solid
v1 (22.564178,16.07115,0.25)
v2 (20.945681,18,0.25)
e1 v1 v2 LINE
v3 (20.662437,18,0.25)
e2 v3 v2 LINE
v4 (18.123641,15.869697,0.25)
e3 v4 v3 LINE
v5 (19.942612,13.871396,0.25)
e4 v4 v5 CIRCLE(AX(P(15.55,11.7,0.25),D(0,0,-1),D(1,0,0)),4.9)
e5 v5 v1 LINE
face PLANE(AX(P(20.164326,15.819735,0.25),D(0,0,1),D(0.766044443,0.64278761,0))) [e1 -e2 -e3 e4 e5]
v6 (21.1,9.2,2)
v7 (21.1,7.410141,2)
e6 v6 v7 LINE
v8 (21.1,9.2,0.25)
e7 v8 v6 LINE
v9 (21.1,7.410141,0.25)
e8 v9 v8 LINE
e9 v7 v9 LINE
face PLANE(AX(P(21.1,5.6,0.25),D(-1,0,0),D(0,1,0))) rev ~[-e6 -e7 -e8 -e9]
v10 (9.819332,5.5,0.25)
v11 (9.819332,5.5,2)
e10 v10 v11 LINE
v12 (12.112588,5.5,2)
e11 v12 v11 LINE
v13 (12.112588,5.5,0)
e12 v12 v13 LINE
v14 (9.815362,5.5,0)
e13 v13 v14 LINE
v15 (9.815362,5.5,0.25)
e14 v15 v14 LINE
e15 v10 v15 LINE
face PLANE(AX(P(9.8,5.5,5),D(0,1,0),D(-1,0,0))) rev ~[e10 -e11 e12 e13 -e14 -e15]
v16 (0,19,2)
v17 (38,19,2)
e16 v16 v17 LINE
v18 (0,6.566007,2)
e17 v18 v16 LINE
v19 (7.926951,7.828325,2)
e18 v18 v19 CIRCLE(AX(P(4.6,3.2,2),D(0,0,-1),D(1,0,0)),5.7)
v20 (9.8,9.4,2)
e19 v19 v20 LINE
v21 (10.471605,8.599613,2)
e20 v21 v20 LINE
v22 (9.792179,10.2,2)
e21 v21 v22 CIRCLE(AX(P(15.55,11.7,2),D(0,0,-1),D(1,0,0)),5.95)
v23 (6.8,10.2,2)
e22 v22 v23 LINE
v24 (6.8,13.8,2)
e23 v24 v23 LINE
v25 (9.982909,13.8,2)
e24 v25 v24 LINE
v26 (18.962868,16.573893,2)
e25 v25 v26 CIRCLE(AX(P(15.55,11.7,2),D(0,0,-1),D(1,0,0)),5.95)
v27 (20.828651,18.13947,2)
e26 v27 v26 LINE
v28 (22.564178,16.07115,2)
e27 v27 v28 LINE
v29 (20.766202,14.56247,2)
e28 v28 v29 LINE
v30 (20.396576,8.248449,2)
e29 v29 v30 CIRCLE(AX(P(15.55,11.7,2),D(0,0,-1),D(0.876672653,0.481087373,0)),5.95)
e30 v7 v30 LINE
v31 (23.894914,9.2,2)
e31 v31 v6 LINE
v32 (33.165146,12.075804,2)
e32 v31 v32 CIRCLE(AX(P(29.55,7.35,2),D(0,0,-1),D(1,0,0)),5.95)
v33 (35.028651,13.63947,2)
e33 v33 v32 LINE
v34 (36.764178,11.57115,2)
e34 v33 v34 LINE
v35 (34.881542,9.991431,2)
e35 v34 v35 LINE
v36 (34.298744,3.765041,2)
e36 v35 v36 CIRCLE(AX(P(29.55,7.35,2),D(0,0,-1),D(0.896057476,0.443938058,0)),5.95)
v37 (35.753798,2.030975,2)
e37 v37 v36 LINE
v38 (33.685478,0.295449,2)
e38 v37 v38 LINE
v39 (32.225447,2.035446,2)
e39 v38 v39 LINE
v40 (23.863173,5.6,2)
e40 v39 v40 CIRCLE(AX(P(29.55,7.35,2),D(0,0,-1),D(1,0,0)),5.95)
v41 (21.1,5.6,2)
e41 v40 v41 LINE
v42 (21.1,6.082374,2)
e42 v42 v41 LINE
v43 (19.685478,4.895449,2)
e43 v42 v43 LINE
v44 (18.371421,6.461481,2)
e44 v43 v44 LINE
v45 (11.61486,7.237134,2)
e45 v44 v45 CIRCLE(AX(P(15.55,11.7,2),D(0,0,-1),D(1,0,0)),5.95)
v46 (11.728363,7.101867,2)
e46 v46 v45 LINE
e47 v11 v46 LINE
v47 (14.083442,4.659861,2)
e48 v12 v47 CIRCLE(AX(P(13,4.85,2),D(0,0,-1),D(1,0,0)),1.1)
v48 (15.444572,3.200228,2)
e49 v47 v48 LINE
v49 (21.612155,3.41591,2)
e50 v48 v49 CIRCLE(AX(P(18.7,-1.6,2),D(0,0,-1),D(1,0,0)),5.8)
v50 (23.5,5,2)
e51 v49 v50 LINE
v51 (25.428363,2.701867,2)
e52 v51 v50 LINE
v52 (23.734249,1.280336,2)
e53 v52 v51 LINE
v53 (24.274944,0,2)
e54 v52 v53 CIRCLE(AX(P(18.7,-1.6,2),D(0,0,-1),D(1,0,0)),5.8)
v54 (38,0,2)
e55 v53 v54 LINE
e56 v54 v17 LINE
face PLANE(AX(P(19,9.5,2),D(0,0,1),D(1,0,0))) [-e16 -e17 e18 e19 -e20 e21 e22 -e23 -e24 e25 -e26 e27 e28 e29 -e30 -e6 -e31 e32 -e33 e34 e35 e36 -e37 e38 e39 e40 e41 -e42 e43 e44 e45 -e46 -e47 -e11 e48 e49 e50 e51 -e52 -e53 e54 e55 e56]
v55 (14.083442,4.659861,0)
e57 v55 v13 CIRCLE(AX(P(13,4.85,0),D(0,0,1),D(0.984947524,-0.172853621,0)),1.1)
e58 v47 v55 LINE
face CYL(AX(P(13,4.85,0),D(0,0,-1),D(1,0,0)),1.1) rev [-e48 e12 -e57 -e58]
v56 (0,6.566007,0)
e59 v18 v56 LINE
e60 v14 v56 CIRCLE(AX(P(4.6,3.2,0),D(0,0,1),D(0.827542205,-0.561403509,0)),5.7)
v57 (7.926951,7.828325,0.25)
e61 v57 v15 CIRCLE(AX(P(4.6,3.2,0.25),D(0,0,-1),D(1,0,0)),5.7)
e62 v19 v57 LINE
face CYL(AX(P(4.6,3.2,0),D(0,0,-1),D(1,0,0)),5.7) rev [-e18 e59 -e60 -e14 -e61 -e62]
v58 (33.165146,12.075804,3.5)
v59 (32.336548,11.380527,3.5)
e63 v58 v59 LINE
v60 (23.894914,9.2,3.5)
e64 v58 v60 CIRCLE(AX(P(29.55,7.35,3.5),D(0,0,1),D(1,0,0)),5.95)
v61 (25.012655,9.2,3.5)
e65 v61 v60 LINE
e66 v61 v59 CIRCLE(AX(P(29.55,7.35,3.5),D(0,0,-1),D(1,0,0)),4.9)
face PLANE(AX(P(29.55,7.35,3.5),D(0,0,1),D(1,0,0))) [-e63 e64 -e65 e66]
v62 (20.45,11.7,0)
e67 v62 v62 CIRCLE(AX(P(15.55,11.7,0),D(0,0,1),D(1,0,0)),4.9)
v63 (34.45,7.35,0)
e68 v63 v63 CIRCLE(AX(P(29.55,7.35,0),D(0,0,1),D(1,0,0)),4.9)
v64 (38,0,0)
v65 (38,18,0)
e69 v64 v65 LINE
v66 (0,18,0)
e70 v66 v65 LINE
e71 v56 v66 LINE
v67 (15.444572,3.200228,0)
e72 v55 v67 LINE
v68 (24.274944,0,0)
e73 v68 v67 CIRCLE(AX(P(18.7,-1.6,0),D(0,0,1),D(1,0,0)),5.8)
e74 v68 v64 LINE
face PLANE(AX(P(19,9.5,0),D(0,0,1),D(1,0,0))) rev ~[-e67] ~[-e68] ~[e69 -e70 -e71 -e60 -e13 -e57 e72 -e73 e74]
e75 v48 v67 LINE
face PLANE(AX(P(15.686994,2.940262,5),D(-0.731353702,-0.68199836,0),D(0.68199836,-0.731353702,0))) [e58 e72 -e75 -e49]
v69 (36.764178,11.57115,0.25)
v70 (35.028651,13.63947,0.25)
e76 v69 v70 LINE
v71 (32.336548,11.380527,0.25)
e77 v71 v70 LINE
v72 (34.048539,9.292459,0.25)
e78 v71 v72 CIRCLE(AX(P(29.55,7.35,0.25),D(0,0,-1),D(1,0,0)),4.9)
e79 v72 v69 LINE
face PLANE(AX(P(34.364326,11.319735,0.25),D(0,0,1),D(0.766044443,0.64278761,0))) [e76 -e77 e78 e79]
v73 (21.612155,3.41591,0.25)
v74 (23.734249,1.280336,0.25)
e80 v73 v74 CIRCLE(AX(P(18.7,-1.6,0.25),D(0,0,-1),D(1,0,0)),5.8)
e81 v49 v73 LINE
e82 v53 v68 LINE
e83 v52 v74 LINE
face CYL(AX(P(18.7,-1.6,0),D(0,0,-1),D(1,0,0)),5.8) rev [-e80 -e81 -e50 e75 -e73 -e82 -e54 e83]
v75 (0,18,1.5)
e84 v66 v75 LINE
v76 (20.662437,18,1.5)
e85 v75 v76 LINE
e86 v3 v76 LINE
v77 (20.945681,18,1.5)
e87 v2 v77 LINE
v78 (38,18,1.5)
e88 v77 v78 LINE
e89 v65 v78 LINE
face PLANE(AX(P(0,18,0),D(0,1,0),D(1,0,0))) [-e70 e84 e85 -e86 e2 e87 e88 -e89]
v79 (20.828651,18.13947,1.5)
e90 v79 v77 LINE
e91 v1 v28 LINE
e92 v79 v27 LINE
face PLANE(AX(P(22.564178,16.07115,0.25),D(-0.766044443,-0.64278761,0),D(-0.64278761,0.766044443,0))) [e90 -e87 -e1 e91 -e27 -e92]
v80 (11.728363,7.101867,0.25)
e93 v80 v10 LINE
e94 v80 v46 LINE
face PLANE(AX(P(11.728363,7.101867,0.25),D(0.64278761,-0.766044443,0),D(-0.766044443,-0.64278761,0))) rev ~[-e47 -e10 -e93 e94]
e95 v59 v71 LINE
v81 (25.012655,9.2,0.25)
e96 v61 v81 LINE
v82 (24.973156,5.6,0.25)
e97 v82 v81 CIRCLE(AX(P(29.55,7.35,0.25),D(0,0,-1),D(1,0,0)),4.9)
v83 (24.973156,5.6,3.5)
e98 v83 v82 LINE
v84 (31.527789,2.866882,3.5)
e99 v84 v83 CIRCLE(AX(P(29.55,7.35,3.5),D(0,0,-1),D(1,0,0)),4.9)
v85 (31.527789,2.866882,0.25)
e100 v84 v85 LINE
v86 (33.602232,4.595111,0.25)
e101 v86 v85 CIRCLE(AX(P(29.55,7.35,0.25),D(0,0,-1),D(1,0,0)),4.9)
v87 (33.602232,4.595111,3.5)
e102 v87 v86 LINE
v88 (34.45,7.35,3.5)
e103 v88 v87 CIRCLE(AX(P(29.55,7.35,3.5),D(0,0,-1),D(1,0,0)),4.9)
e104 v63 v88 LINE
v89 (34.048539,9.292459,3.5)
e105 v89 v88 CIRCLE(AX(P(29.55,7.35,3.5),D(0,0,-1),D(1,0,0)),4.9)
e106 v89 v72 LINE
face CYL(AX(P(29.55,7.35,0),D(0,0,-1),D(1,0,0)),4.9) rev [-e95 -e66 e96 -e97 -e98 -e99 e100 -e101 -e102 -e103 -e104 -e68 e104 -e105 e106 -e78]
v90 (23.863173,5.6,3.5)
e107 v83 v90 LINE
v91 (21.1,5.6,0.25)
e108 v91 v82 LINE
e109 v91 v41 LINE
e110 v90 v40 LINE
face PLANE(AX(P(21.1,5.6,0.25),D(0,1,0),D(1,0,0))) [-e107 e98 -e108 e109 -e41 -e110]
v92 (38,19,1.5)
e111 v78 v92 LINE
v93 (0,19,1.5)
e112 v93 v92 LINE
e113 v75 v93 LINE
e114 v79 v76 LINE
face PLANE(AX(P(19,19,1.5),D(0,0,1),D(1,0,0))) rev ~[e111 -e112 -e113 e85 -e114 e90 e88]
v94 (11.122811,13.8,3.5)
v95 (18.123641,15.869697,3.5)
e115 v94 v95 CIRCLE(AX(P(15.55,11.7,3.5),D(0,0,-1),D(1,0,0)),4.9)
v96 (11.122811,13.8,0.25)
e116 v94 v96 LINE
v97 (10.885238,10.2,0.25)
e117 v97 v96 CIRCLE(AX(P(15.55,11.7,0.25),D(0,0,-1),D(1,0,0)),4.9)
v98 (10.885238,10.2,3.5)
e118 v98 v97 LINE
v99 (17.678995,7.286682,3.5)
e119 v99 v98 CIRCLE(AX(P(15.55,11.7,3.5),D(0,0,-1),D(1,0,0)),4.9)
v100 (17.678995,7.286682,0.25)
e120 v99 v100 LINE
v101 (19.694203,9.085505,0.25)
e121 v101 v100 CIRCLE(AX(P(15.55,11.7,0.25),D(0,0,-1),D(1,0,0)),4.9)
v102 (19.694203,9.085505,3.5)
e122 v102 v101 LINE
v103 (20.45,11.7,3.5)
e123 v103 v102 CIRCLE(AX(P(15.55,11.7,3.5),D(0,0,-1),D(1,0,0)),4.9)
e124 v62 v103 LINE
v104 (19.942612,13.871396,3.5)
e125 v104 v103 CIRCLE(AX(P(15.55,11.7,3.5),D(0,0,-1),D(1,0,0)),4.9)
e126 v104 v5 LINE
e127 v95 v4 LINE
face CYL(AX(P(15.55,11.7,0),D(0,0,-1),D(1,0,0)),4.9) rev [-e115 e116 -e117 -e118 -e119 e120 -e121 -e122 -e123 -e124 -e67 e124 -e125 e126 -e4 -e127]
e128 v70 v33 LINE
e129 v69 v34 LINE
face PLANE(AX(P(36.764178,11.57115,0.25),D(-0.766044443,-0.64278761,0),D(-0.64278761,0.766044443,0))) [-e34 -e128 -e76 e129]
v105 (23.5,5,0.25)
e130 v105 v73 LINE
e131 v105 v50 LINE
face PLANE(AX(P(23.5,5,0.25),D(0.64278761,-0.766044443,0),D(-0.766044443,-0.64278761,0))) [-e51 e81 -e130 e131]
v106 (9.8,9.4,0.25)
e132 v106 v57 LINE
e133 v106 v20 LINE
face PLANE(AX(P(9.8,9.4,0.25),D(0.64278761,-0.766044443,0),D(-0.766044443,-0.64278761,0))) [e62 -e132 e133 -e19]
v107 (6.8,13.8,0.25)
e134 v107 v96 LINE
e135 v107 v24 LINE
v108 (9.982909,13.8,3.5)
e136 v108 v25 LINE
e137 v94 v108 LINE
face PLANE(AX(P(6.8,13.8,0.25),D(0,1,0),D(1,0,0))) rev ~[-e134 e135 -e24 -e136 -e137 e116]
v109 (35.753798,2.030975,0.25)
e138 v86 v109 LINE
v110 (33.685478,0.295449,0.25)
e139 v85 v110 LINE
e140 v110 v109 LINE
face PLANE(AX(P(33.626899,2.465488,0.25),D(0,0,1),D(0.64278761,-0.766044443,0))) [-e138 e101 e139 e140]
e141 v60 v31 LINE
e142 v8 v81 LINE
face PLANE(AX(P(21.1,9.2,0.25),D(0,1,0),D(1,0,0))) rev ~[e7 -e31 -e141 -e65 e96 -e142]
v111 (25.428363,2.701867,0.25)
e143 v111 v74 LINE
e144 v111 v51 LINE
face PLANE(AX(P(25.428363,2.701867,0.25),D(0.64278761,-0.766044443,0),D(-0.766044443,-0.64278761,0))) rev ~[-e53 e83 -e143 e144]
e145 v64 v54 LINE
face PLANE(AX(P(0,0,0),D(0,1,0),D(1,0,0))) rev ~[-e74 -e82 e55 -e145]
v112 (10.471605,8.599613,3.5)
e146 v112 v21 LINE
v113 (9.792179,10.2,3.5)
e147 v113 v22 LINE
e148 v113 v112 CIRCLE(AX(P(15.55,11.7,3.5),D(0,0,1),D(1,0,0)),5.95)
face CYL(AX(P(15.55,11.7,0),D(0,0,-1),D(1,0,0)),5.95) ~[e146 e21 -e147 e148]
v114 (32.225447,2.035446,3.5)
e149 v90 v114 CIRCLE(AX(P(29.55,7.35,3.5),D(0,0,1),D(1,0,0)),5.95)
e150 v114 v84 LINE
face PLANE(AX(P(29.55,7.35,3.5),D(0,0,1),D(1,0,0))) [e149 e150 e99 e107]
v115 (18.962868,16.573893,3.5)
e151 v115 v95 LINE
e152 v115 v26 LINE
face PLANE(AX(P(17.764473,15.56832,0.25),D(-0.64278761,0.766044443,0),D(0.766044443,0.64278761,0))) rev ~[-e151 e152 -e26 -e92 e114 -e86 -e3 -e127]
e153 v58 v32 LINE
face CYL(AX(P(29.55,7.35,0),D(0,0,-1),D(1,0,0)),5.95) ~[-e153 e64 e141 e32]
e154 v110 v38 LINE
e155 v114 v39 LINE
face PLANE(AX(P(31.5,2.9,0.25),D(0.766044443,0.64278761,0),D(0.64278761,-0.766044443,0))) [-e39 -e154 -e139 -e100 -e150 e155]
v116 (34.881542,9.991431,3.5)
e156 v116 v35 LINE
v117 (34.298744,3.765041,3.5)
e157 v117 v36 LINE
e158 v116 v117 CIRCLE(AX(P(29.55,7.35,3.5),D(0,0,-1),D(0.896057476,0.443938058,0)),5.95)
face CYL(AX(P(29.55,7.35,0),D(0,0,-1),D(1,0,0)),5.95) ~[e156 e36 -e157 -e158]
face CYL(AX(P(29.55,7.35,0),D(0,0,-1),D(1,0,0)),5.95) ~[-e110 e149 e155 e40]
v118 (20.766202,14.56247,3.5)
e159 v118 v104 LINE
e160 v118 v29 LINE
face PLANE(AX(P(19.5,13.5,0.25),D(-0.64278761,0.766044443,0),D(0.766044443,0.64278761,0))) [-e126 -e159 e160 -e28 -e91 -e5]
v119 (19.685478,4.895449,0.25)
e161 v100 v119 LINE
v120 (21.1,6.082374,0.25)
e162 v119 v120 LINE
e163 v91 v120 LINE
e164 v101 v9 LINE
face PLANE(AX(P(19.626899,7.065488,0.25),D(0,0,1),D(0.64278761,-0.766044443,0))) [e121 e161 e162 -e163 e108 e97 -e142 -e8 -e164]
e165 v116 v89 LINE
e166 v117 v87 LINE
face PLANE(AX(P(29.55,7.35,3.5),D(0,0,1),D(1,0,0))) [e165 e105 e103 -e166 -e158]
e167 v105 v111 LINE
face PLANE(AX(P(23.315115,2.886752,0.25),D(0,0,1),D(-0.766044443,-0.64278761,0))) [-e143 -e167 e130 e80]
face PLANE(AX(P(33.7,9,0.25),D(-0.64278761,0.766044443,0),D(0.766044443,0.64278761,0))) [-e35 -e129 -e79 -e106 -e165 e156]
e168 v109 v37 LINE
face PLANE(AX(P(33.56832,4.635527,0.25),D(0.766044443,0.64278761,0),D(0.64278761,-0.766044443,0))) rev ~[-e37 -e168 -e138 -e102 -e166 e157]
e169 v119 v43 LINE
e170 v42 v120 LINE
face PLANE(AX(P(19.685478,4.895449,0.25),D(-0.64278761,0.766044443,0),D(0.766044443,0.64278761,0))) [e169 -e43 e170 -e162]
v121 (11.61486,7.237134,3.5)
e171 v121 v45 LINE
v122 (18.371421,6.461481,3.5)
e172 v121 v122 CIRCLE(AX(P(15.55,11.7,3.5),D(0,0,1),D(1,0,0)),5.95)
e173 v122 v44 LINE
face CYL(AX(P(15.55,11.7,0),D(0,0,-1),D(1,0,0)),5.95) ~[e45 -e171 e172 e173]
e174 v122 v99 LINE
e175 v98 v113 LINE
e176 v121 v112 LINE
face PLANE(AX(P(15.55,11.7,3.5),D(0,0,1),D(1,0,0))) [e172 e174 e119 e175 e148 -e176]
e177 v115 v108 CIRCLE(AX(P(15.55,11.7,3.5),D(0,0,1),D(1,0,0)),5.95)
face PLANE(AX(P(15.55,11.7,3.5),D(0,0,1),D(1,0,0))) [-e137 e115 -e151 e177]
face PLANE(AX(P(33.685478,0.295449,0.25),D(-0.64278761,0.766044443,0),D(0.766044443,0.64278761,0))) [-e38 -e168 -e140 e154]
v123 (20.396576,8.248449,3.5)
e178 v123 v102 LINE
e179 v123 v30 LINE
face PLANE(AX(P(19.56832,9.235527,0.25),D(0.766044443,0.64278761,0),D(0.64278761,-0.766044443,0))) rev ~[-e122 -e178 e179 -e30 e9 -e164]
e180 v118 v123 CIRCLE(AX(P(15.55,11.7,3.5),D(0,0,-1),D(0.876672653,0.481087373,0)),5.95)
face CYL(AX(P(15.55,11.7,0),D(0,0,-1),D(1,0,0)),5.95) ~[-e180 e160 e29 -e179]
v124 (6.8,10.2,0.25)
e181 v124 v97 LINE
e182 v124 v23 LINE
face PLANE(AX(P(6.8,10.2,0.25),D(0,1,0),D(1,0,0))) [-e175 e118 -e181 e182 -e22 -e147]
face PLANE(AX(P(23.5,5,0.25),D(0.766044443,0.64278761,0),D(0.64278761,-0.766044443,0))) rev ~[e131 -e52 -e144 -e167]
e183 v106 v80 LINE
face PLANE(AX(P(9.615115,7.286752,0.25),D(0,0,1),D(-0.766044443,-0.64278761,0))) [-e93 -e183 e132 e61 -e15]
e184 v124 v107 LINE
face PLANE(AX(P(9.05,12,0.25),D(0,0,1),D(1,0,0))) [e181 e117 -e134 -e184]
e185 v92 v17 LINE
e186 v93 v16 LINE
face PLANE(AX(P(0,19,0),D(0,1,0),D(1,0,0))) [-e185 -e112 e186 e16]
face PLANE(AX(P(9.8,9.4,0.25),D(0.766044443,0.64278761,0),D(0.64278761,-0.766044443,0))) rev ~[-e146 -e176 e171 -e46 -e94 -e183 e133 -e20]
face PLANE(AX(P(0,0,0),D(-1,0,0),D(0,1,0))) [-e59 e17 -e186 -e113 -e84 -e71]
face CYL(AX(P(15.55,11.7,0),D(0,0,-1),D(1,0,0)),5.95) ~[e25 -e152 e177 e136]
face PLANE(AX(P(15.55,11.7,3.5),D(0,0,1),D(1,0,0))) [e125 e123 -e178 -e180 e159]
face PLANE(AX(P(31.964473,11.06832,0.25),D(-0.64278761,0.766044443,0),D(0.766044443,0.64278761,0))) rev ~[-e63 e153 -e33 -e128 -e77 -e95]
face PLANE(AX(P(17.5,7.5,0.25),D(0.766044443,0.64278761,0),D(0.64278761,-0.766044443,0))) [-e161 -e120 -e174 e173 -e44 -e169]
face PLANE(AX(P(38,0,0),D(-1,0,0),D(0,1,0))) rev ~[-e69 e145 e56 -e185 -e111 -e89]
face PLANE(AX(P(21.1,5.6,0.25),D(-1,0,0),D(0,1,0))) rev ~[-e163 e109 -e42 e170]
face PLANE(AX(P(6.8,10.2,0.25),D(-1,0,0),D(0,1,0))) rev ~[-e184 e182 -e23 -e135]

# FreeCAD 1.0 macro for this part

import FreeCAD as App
import Part
import Sketcher

V = App.Vector

doc = App.newDocument("Part")
body = doc.addObject("PartDesign::Body", "Body")

sketch1 = body.newObject("Sketcher::SketchObject", "Sketch")
sketch1.AttachmentSupport = (doc.getObject("XY_Plane"), [""])
sketch1.MapMode = "FlatFace"
sketch1.addGeometry(Part.Circle(V(13, 4.8, 0), V(0, 0, 1), 1.1), False)
sketch1.addConstraint(Sketcher.Constraint("Diameter", 0, 2.2))
sketch1.addConstraint(Sketcher.Constraint("DistanceX", -1, 1, 0, 3, 13.0))
sketch1.addConstraint(Sketcher.Constraint("DistanceY", -1, 1, 0, 3, 4.85))
pad1 = body.newObject("PartDesign::Pad", "Pad")
pad1.Profile = sketch1
pad1.Length = 10
body2 = doc.addObject("PartDesign::Body", "Body001")

sketch2 = body2.newObject("Sketcher::SketchObject", "Sketch001")
sketch2.AttachmentSupport = (doc.getObject("XZ_Plane001"), [""])
sketch2.MapMode = "FlatFace"
sketch2.AttachmentOffset = App.Placement(V(0, 0, -5.5), App.Rotation())
sketch2.addGeometry(Part.LineSegment(V(13, 10, 0), V(13, 0, 0)), False)
sketch2.addGeometry(Part.LineSegment(V(13, 0, 0), V(6, 0, 0)), False)
sketch2.addGeometry(Part.LineSegment(V(6, 0, 0), V(6, 10, 0)), False)
sketch2.addGeometry(Part.LineSegment(V(6, 10, 0), V(13, 10, 0)), False)
sketch2.addGeometry(Part.LineSegment(V(13, 0, 0), V(13, 10, 0)), True)
sketch2.addConstraint(Sketcher.Constraint("Coincident", 0, 2, 1, 1))
sketch2.addConstraint(Sketcher.Constraint("Coincident", 1, 2, 2, 1))
sketch2.addConstraint(Sketcher.Constraint("Coincident", 2, 2, 3, 1))
sketch2.addConstraint(Sketcher.Constraint("Coincident", 3, 2, 0, 1))
sketch2.addConstraint(Sketcher.Constraint("Vertical", 0))
sketch2.addConstraint(Sketcher.Constraint("Horizontal", 1))
sketch2.addConstraint(Sketcher.Constraint("Vertical", 2))
sketch2.addConstraint(Sketcher.Constraint("Horizontal", 3))
sketch2.addConstraint(Sketcher.Constraint("Vertical", 4))
sketch2.addConstraint(Sketcher.Constraint("Coincident", 4, 1, 0, 2))
sketch2.addConstraint(Sketcher.Constraint("PointOnObject", 0, 2, -1))
sketch2.addConstraint(Sketcher.Constraint("Horizontal", 2, 2, 4, 2))
sketch2.addConstraint(Sketcher.Constraint("DistanceX", 1, 2, 1, 1, 7.0))
sketch2.addConstraint(Sketcher.Constraint("DistanceY", 0, 2, 0, 1, 10.0))
sketch2.addConstraint(Sketcher.Constraint("DistanceX", -1, 1, 0, 2, 13.3))
revolution = body2.newObject("PartDesign::Revolution", "Revolution")
revolution.Profile = sketch2
revolution.ReferenceAxis = (sketch2, ["Axis0"])
revolution.Angle = 133
doc.recompute()

boolean = body2.newObject("PartDesign::Boolean", "Boolean")
boolean.Type = "Fuse"
boolean.addObjects([body])
body3 = doc.addObject("PartDesign::Body", "Body002")

sketch3 = body3.newObject("Sketcher::SketchObject", "Sketch002")
sketch3.AttachmentSupport = (doc.getObject("XY_Plane002"), [""])
sketch3.MapMode = "FlatFace"
sketch3.AttachmentOffset = App.Placement(V(0, 0, 0.25), App.Rotation())
sketch3.addGeometry(Part.LineSegment(V(6.8, 13.8, 0), V(6.8, 10.2, 0)), False)
sketch3.addGeometry(Part.LineSegment(V(6.8, 10.2, 0), V(11.3, 10.2, 0)), False)
sketch3.addGeometry(Part.LineSegment(V(11.3, 10.2, 0), V(11.3, 13.8, 0)), False)
sketch3.addGeometry(Part.LineSegment(V(11.3, 13.8, 0), V(6.8, 13.8, 0)), False)
sketch3.addConstraint(Sketcher.Constraint("Coincident", 0, 2, 1, 1))
sketch3.addConstraint(Sketcher.Constraint("Coincident", 1, 2, 2, 1))
sketch3.addConstraint(Sketcher.Constraint("Coincident", 2, 2, 3, 1))
sketch3.addConstraint(Sketcher.Constraint("Coincident", 3, 2, 0, 1))
sketch3.addConstraint(Sketcher.Constraint("Vertical", 0))
sketch3.addConstraint(Sketcher.Constraint("Horizontal", 1))
sketch3.addConstraint(Sketcher.Constraint("Vertical", 2))
sketch3.addConstraint(Sketcher.Constraint("Horizontal", 3))
sketch3.addConstraint(Sketcher.Constraint("DistanceX", 1, 1, 1, 2, 4.5))
sketch3.addConstraint(Sketcher.Constraint("DistanceY", 0, 2, 0, 1, 3.6))
sketch3.addConstraint(Sketcher.Constraint("DistanceX", -1, 1, 0, 2, 6.8))
sketch3.addConstraint(Sketcher.Constraint("DistanceY", -1, 1, 0, 2, 10.2))
pad2 = body3.newObject("PartDesign::Pad", "Pad001")
pad2.Profile = sketch3
pad2.Length = 10
body4 = doc.addObject("PartDesign::Body", "Body003")

sketch4 = body4.newObject("Sketcher::SketchObject", "Sketch003")
sketch4.AttachmentSupport = (doc.getObject("XY_Plane003"), [""])
sketch4.MapMode = "FlatFace"
sketch4.AttachmentOffset = App.Placement(V(0, 0, 0.25), App.Rotation())
sketch4.addGeometry(Part.LineSegment(V(21.1, 9.2, 0), V(21.1, 5.6, 0)), False)
sketch4.addGeometry(Part.LineSegment(V(21.1, 5.6, 0), V(25.6, 5.6, 0)), False)
sketch4.addGeometry(Part.LineSegment(V(25.6, 5.6, 0), V(25.6, 9.2, 0)), False)
sketch4.addGeometry(Part.LineSegment(V(25.6, 9.2, 0), V(21.1, 9.2, 0)), False)
sketch4.addConstraint(Sketcher.Constraint("Coincident", 0, 2, 1, 1))
sketch4.addConstraint(Sketcher.Constraint("Coincident", 1, 2, 2, 1))
sketch4.addConstraint(Sketcher.Constraint("Coincident", 2, 2, 3, 1))
sketch4.addConstraint(Sketcher.Constraint("Coincident", 3, 2, 0, 1))
sketch4.addConstraint(Sketcher.Constraint("Vertical", 0))
sketch4.addConstraint(Sketcher.Constraint("Horizontal", 1))
sketch4.addConstraint(Sketcher.Constraint("Vertical", 2))
sketch4.addConstraint(Sketcher.Constraint("Horizontal", 3))
sketch4.addConstraint(Sketcher.Constraint("DistanceX", 1, 1, 1, 2, 4.5))
sketch4.addConstraint(Sketcher.Constraint("DistanceY", 0, 2, 0, 1, 3.6))
sketch4.addConstraint(Sketcher.Constraint("DistanceX", -1, 1, 0, 2, 21.1))
sketch4.addConstraint(Sketcher.Constraint("DistanceY", -1, 1, 0, 2, 5.6))
pad3 = body4.newObject("PartDesign::Pad", "Pad002")
pad3.Profile = sketch4
pad3.Length = 10
body5 = doc.addObject("PartDesign::Body", "Body004")

sketch5 = body5.newObject("Sketcher::SketchObject", "Sketch004")
sketch5.AttachmentSupport = (doc.getObject("XY_Plane004"), [""])
sketch5.MapMode = "FlatFace"
sketch5.addGeometry(Part.LineSegment(V(0, 2.7, 0), V(0, 0, 0)), False)
sketch5.addGeometry(Part.LineSegment(V(0, 0, 0), V(3.4, 0, 0)), False)
sketch5.addGeometry(Part.LineSegment(V(3.4, 0, 0), V(3.4, 2.7, 0)), False)
sketch5.addGeometry(Part.LineSegment(V(3.4, 2.7, 0), V(0, 2.7, 0)), False)
sketch5.addConstraint(Sketcher.Constraint("Coincident", 0, 2, 1, 1))
sketch5.addConstraint(Sketcher.Constraint("Coincident", 1, 2, 2, 1))
sketch5.addConstraint(Sketcher.Constraint("Coincident", 2, 2, 3, 1))
sketch5.addConstraint(Sketcher.Constraint("Coincident", 3, 2, 0, 1))
sketch5.addConstraint(Sketcher.Constraint("Vertical", 0))
sketch5.addConstraint(Sketcher.Constraint("Horizontal", 1))
sketch5.addConstraint(Sketcher.Constraint("Vertical", 2))
sketch5.addConstraint(Sketcher.Constraint("Horizontal", 3))
sketch5.addConstraint(Sketcher.Constraint("Coincident", 0, 2, -1, 1))
sketch5.addConstraint(Sketcher.Constraint("DistanceX", 1, 1, 1, 2, 3.4))
sketch5.addConstraint(Sketcher.Constraint("DistanceY", 0, 2, 0, 1, 2.7))
pad4 = body5.newObject("PartDesign::Pad", "Pad003")
pad4.Profile = sketch5
pad4.Length = 3.5
body6 = doc.addObject("PartDesign::Body", "Body005")
doc.recompute()

body5.Placement = App.Placement(V(17.5, 7.5, 0.25), App.Rotation(V(0, 0, -1), 50))
boolean2 = body6.newObject("PartDesign::Boolean", "Boolean001")
boolean2.Type = "Fuse"
boolean2.addObjects([body5])
body7 = doc.addObject("PartDesign::Body", "Body006")

sketch6 = body7.newObject("Sketcher::SketchObject", "Sketch005")
sketch6.AttachmentSupport = (doc.getObject("XY_Plane006"), [""])
sketch6.MapMode = "FlatFace"
sketch6.addGeometry(Part.LineSegment(V(0, 2.7, 0), V(0, 0, 0)), False)
sketch6.addGeometry(Part.LineSegment(V(0, 0, 0), V(4, 0, 0)), False)
sketch6.addGeometry(Part.LineSegment(V(4, 0, 0), V(4, 2.7, 0)), False)
sketch6.addGeometry(Part.LineSegment(V(4, 2.7, 0), V(0, 2.7, 0)), False)
sketch6.addConstraint(Sketcher.Constraint("Coincident", 0, 2, 1, 1))
sketch6.addConstraint(Sketcher.Constraint("Coincident", 1, 2, 2, 1))
sketch6.addConstraint(Sketcher.Constraint("Coincident", 2, 2, 3, 1))
sketch6.addConstraint(Sketcher.Constraint("Coincident", 3, 2, 0, 1))
sketch6.addConstraint(Sketcher.Constraint("Vertical", 0))
sketch6.addConstraint(Sketcher.Constraint("Horizontal", 1))
sketch6.addConstraint(Sketcher.Constraint("Vertical", 2))
sketch6.addConstraint(Sketcher.Constraint("Horizontal", 3))
sketch6.addConstraint(Sketcher.Constraint("Coincident", 0, 2, -1, 1))
sketch6.addConstraint(Sketcher.Constraint("DistanceX", 1, 1, 1, 2, 4.0))
sketch6.addConstraint(Sketcher.Constraint("DistanceY", 0, 2, 0, 1, 2.7))
pad5 = body7.newObject("PartDesign::Pad", "Pad004")
pad5.Profile = sketch6
pad5.Length = 3.5
body8 = doc.addObject("PartDesign::Body", "Body007")
doc.recompute()

body7.Placement = App.Placement(V(33.7, 9, 0.25), App.Rotation(V(0, 0, 1), 40))
boolean3 = body8.newObject("PartDesign::Boolean", "Boolean002")
boolean3.Type = "Fuse"
boolean3.addObjects([body7])
body9 = doc.addObject("PartDesign::Body", "Body008")

sketch7 = body9.newObject("Sketcher::SketchObject", "Sketch006")
sketch7.AttachmentSupport = (doc.getObject("XY_Plane008"), [""])
sketch7.MapMode = "FlatFace"
sketch7.addGeometry(Part.LineSegment(V(0, 3, 0), V(0, 0, 0)), False)
sketch7.addGeometry(Part.LineSegment(V(0, 0, 0), V(3, 0, 0)), False)
sketch7.addGeometry(Part.LineSegment(V(3, 0, 0), V(3, 3, 0)), False)
sketch7.addGeometry(Part.LineSegment(V(3, 3, 0), V(0, 3, 0)), False)
sketch7.addConstraint(Sketcher.Constraint("Coincident", 0, 2, 1, 1))
sketch7.addConstraint(Sketcher.Constraint("Coincident", 1, 2, 2, 1))
sketch7.addConstraint(Sketcher.Constraint("Coincident", 2, 2, 3, 1))
sketch7.addConstraint(Sketcher.Constraint("Coincident", 3, 2, 0, 1))
sketch7.addConstraint(Sketcher.Constraint("Vertical", 0))
sketch7.addConstraint(Sketcher.Constraint("Horizontal", 1))
sketch7.addConstraint(Sketcher.Constraint("Vertical", 2))
sketch7.addConstraint(Sketcher.Constraint("Horizontal", 3))
sketch7.addConstraint(Sketcher.Constraint("Coincident", 0, 2, -1, 1))
sketch7.addConstraint(Sketcher.Constraint("Equal", 3, 0))
sketch7.addConstraint(Sketcher.Constraint("DistanceX", 1, 1, 1, 2, 3.0))
pad6 = body9.newObject("PartDesign::Pad", "Pad005")
pad6.Profile = sketch7
pad6.Length = 3.5
body10 = doc.addObject("PartDesign::Body", "Body009")
doc.recompute()

body9.Placement = App.Placement(V(9.8, 9.4, 0.25), App.Rotation(V(0, 0, 1), 220))
boolean4 = body10.newObject("PartDesign::Boolean", "Boolean003")
boolean4.Type = "Fuse"
boolean4.addObjects([body9])
body11 = doc.addObject("PartDesign::Body", "Body010")

sketch8 = body11.newObject("Sketcher::SketchObject", "Sketch007")
sketch8.AttachmentSupport = (doc.getObject("XY_Plane010"), [""])
sketch8.MapMode = "FlatFace"
sketch8.addGeometry(Part.LineSegment(V(0, 3, 0), V(0, 0, 0)), False)
sketch8.addGeometry(Part.LineSegment(V(0, 0, 0), V(3, 0, 0)), False)
sketch8.addGeometry(Part.LineSegment(V(3, 0, 0), V(3, 3, 0)), False)
sketch8.addGeometry(Part.LineSegment(V(3, 3, 0), V(0, 3, 0)), False)
sketch8.addConstraint(Sketcher.Constraint("Coincident", 0, 2, 1, 1))
sketch8.addConstraint(Sketcher.Constraint("Coincident", 1, 2, 2, 1))
sketch8.addConstraint(Sketcher.Constraint("Coincident", 2, 2, 3, 1))
sketch8.addConstraint(Sketcher.Constraint("Coincident", 3, 2, 0, 1))
sketch8.addConstraint(Sketcher.Constraint("Vertical", 0))
sketch8.addConstraint(Sketcher.Constraint("Horizontal", 1))
sketch8.addConstraint(Sketcher.Constraint("Vertical", 2))
sketch8.addConstraint(Sketcher.Constraint("Horizontal", 3))
sketch8.addConstraint(Sketcher.Constraint("Coincident", 0, 2, -1, 1))
sketch8.addConstraint(Sketcher.Constraint("Equal", 3, 0))
sketch8.addConstraint(Sketcher.Constraint("DistanceX", 1, 1, 1, 2, 3.0))
pad7 = body11.newObject("PartDesign::Pad", "Pad006")
pad7.Profile = sketch8
pad7.Length = 3.5
body12 = doc.addObject("PartDesign::Body", "Body011")
doc.recompute()

body11.Placement = App.Placement(V(23.5, 5, 0.25), App.Rotation(V(0, 0, 1), 220))
boolean5 = body12.newObject("PartDesign::Boolean", "Boolean004")
boolean5.Type = "Fuse"
boolean5.addObjects([body11])
body13 = doc.addObject("PartDesign::Body", "Body012")

sketch9 = body13.newObject("Sketcher::SketchObject", "Sketch008")
sketch9.AttachmentSupport = (doc.getObject("XY_Plane012"), [""])
sketch9.MapMode = "FlatFace"
sketch9.addGeometry(Part.LineSegment(V(0, 2.7, 0), V(0, 0, 0)), False)
sketch9.addGeometry(Part.LineSegment(V(0, 0, 0), V(3.4, 0, 0)), False)
sketch9.addGeometry(Part.LineSegment(V(3.4, 0, 0), V(3.4, 2.7, 0)), False)
sketch9.addGeometry(Part.LineSegment(V(3.4, 2.7, 0), V(0, 2.7, 0)), False)
sketch9.addConstraint(Sketcher.Constraint("Coincident", 0, 2, 1, 1))
sketch9.addConstraint(Sketcher.Constraint("Coincident", 1, 2, 2, 1))
sketch9.addConstraint(Sketcher.Constraint("Coincident", 2, 2, 3, 1))
sketch9.addConstraint(Sketcher.Constraint("Coincident", 3, 2, 0, 1))
sketch9.addConstraint(Sketcher.Constraint("Vertical", 0))
sketch9.addConstraint(Sketcher.Constraint("Horizontal", 1))
sketch9.addConstraint(Sketcher.Constraint("Vertical", 2))
sketch9.addConstraint(Sketcher.Constraint("Horizontal", 3))
sketch9.addConstraint(Sketcher.Constraint("Coincident", 0, 2, -1, 1))
sketch9.addConstraint(Sketcher.Constraint("DistanceX", 1, 1, 1, 2, 3.4))
sketch9.addConstraint(Sketcher.Constraint("DistanceY", 0, 2, 0, 1, 2.7))
pad8 = body13.newObject("PartDesign::Pad", "Pad007")
pad8.Profile = sketch9
pad8.Length = 3.5
body14 = doc.addObject("PartDesign::Body", "Body013")
doc.recompute()

body13.Placement = App.Placement(V(31.5, 2.9, 0.25), App.Rotation(V(0, 0, -1), 50))
boolean6 = body14.newObject("PartDesign::Boolean", "Boolean005")
boolean6.Type = "Fuse"
boolean6.addObjects([body13])
body15 = doc.addObject("PartDesign::Body", "Body014")

sketch10 = body15.newObject("Sketcher::SketchObject", "Sketch009")
sketch10.AttachmentSupport = (doc.getObject("XY_Plane014"), [""])
sketch10.MapMode = "FlatFace"
sketch10.addGeometry(Part.LineSegment(V(0, 2.7, 0), V(0, 0, 0)), False)
sketch10.addGeometry(Part.LineSegment(V(0, 0, 0), V(4, 0, 0)), False)
sketch10.addGeometry(Part.LineSegment(V(4, 0, 0), V(4, 2.7, 0)), False)
sketch10.addGeometry(Part.LineSegment(V(4, 2.7, 0), V(0, 2.7, 0)), False)
sketch10.addConstraint(Sketcher.Constraint("Coincident", 0, 2, 1, 1))
sketch10.addConstraint(Sketcher.Constraint("Coincident", 1, 2, 2, 1))
sketch10.addConstraint(Sketcher.Constraint("Coincident", 2, 2, 3, 1))
sketch10.addConstraint(Sketcher.Constraint("Coincident", 3, 2, 0, 1))
sketch10.addConstraint(Sketcher.Constraint("Vertical", 0))
sketch10.addConstraint(Sketcher.Constraint("Horizontal", 1))
sketch10.addConstraint(Sketcher.Constraint("Vertical", 2))
sketch10.addConstraint(Sketcher.Constraint("Horizontal", 3))
sketch10.addConstraint(Sketcher.Constraint("Coincident", 0, 2, -1, 1))
sketch10.addConstraint(Sketcher.Constraint("DistanceX", 1, 1, 1, 2, 4.0))
sketch10.addConstraint(Sketcher.Constraint("DistanceY", 0, 2, 0, 1, 2.7))
pad9 = body15.newObject("PartDesign::Pad", "Pad008")
pad9.Profile = sketch10
pad9.Length = 3.5
body16 = doc.addObject("PartDesign::Body", "Body015")
doc.recompute()

body15.Placement = App.Placement(V(19.5, 13.5, 0.25), App.Rotation(V(0, 0, 1), 40))
boolean7 = body16.newObject("PartDesign::Boolean", "Boolean006")
boolean7.Type = "Fuse"
boolean7.addObjects([body15])
body17 = doc.addObject("PartDesign::Body", "Body016")

sketch11 = body17.newObject("Sketcher::SketchObject", "Sketch010")
sketch11.AttachmentSupport = (doc.getObject("XY_Plane016"), [""])
sketch11.MapMode = "FlatFace"
sketch11.addGeometry(Part.Circle(V(29.6, 7.3, 0), V(0, 0, 1), 4.9), False)
sketch11.addConstraint(Sketcher.Constraint("Diameter", 0, 9.8))
sketch11.addConstraint(Sketcher.Constraint("DistanceX", -1, 1, 0, 3, 29.55))
sketch11.addConstraint(Sketcher.Constraint("DistanceY", -1, 1, 0, 3, 7.35))
pad10 = body17.newObject("PartDesign::Pad", "Pad009")
pad10.Profile = sketch11
pad10.Length = 10
body18 = doc.addObject("PartDesign::Body", "Body017")

sketch12 = body18.newObject("Sketcher::SketchObject", "Sketch011")
sketch12.AttachmentSupport = (doc.getObject("XY_Plane017"), [""])
sketch12.MapMode = "FlatFace"
sketch12.addGeometry(Part.Circle(V(19, -2, 0), V(0, 0, 1), 6), False)
sketch12.addConstraint(Sketcher.Constraint("Diameter", 0, 11.6))
sketch12.addConstraint(Sketcher.Constraint("DistanceX", -1, 1, 0, 3, 18.7))
sketch12.addConstraint(Sketcher.Constraint("DistanceY", 0, 3, -1, 1, 1.6))
pad11 = body18.newObject("PartDesign::Pad", "Pad010")
pad11.Profile = sketch12
pad11.Length = 10
body19 = doc.addObject("PartDesign::Body", "Body018")

sketch13 = body19.newObject("Sketcher::SketchObject", "Sketch012")
sketch13.AttachmentSupport = (doc.getObject("XY_Plane018"), [""])
sketch13.MapMode = "FlatFace"
sketch13.addGeometry(Part.Circle(V(15.6, 11.7, 0), V(0, 0, 1), 4.9), False)
sketch13.addConstraint(Sketcher.Constraint("Diameter", 0, 9.8))
sketch13.addConstraint(Sketcher.Constraint("DistanceY", -1, 1, 0, 3, 11.7))
sketch13.addConstraint(Sketcher.Constraint("DistanceX", -1, 1, 0, 3, 15.55))
pad12 = body19.newObject("PartDesign::Pad", "Pad011")
pad12.Profile = sketch13
pad12.Length = 10
body20 = doc.addObject("PartDesign::Body", "Body019")

sketch14 = body20.newObject("Sketcher::SketchObject", "Sketch013")
sketch14.AttachmentSupport = (doc.getObject("XY_Plane019"), [""])
sketch14.MapMode = "FlatFace"
sketch14.addGeometry(Part.Circle(V(5, 3, 0), V(0, 0, 1), 6), False)
sketch14.addConstraint(Sketcher.Constraint("Diameter", 0, 11.4))
sketch14.addConstraint(Sketcher.Constraint("DistanceX", -1, 1, 0, 3, 4.6))
sketch14.addConstraint(Sketcher.Constraint("DistanceY", -1, 1, 0, 3, 3.2))
pad13 = body20.newObject("PartDesign::Pad", "Pad012")
pad13.Profile = sketch14
pad13.Length = 10
body21 = doc.addObject("PartDesign::Body", "Body020")
body21.AllowCompound = True

sketch15 = body21.newObject("Sketcher::SketchObject", "Sketch014")
sketch15.AttachmentSupport = (doc.getObject("XY_Plane020"), [""])
sketch15.MapMode = "FlatFace"
sketch15.addGeometry(Part.LineSegment(V(0, 20, 0), V(0, 18, 0)), False)
sketch15.addGeometry(Part.LineSegment(V(0, 18, 0), V(38, 18, 0)), False)
sketch15.addGeometry(Part.LineSegment(V(38, 18, 0), V(38, 20, 0)), False)
sketch15.addGeometry(Part.LineSegment(V(38, 20, 0), V(0, 20, 0)), False)
sketch15.addConstraint(Sketcher.Constraint("Coincident", 0, 2, 1, 1))
sketch15.addConstraint(Sketcher.Constraint("Coincident", 1, 2, 2, 1))
sketch15.addConstraint(Sketcher.Constraint("Coincident", 2, 2, 3, 1))
sketch15.addConstraint(Sketcher.Constraint("Coincident", 3, 2, 0, 1))
sketch15.addConstraint(Sketcher.Constraint("Vertical", 0))
sketch15.addConstraint(Sketcher.Constraint("Horizontal", 1))
sketch15.addConstraint(Sketcher.Constraint("Vertical", 2))
sketch15.addConstraint(Sketcher.Constraint("Horizontal", 3))
sketch15.addConstraint(Sketcher.Constraint("PointOnObject", 0, 2, -2))
sketch15.addConstraint(Sketcher.Constraint("DistanceX", 1, 1, 1, 2, 38.0))
sketch15.addConstraint(Sketcher.Constraint("DistanceY", 0, 2, 0, 1, 2.0))
sketch15.addConstraint(Sketcher.Constraint("DistanceY", -1, 1, 0, 2, 18.0))
pad14 = body21.newObject("PartDesign::Pad", "Pad013")
pad14.Profile = sketch15
pad14.Length = 1.5
doc.recompute()

boolean8 = body21.newObject("PartDesign::Boolean", "Boolean007")
boolean8.Type = "Fuse"
boolean8.addObjects([body3])
doc.recompute()

boolean9 = body21.newObject("PartDesign::Boolean", "Boolean008")
boolean9.Type = "Fuse"
boolean9.addObjects([body4])
doc.recompute()

boolean10 = body21.newObject("PartDesign::Boolean", "Boolean009")
boolean10.Type = "Fuse"
boolean10.addObjects([body6])
doc.recompute()

boolean11 = body21.newObject("PartDesign::Boolean", "Boolean010")
boolean11.Type = "Fuse"
boolean11.addObjects([body8])
doc.recompute()

boolean12 = body21.newObject("PartDesign::Boolean", "Boolean011")
boolean12.Type = "Fuse"
boolean12.addObjects([body10])
doc.recompute()

boolean13 = body21.newObject("PartDesign::Boolean", "Boolean012")
boolean13.Type = "Fuse"
boolean13.addObjects([body12])
doc.recompute()

boolean14 = body21.newObject("PartDesign::Boolean", "Boolean013")
boolean14.Type = "Fuse"
boolean14.addObjects([body14])
doc.recompute()

boolean15 = body21.newObject("PartDesign::Boolean", "Boolean014")
boolean15.Type = "Fuse"
boolean15.addObjects([body16])
doc.recompute()

boolean16 = body21.newObject("PartDesign::Boolean", "Boolean015")
boolean16.Type = "Fuse"
boolean16.addObjects([body17])
doc.recompute()

boolean17 = body21.newObject("PartDesign::Boolean", "Boolean016")
boolean17.Type = "Fuse"
boolean17.addObjects([body18])
doc.recompute()

boolean18 = body21.newObject("PartDesign::Boolean", "Boolean017")
boolean18.Type = "Fuse"
boolean18.addObjects([body19])
doc.recompute()

boolean19 = body21.newObject("PartDesign::Boolean", "Boolean018")
boolean19.Type = "Fuse"
boolean19.addObjects([body20])
body22 = doc.addObject("PartDesign::Body", "Body021")

sketch16 = body22.newObject("Sketcher::SketchObject", "Sketch015")
sketch16.AttachmentSupport = (doc.getObject("XY_Plane021"), [""])
sketch16.MapMode = "FlatFace"
sketch16.addGeometry(Part.Circle(V(16, 12, 0), V(0, 0, 1), 6), False)
sketch16.addConstraint(Sketcher.Constraint("Diameter", 0, 11.9))
sketch16.addConstraint(Sketcher.Constraint("DistanceY", -1, 1, 0, 3, 11.7))
sketch16.addConstraint(Sketcher.Constraint("DistanceX", -1, 1, 0, 3, 15.55))
pad15 = body22.newObject("PartDesign::Pad", "Pad014")
pad15.Profile = sketch16
pad15.Length = 3.5
body23 = doc.addObject("PartDesign::Body", "Body022")

sketch17 = body23.newObject("Sketcher::SketchObject", "Sketch016")
sketch17.AttachmentSupport = (doc.getObject("XY_Plane022"), [""])
sketch17.MapMode = "FlatFace"
sketch17.addGeometry(Part.LineSegment(V(0, 19, 0), V(0, 0, 0)), False)
sketch17.addGeometry(Part.LineSegment(V(0, 0, 0), V(38, 0, 0)), False)
sketch17.addGeometry(Part.LineSegment(V(38, 0, 0), V(38, 19, 0)), False)
sketch17.addGeometry(Part.LineSegment(V(38, 19, 0), V(0, 19, 0)), False)
sketch17.addConstraint(Sketcher.Constraint("Coincident", 0, 2, 1, 1))
sketch17.addConstraint(Sketcher.Constraint("Coincident", 1, 2, 2, 1))
sketch17.addConstraint(Sketcher.Constraint("Coincident", 2, 2, 3, 1))
sketch17.addConstraint(Sketcher.Constraint("Coincident", 3, 2, 0, 1))
sketch17.addConstraint(Sketcher.Constraint("Vertical", 0))
sketch17.addConstraint(Sketcher.Constraint("Horizontal", 1))
sketch17.addConstraint(Sketcher.Constraint("Vertical", 2))
sketch17.addConstraint(Sketcher.Constraint("Horizontal", 3))
sketch17.addConstraint(Sketcher.Constraint("Coincident", 0, 2, -1, 1))
sketch17.addConstraint(Sketcher.Constraint("DistanceX", 1, 1, 1, 2, 38.0))
sketch17.addConstraint(Sketcher.Constraint("DistanceY", 0, 2, 0, 1, 19.0))
pad16 = body23.newObject("PartDesign::Pad", "Pad015")
pad16.Profile = sketch17
pad16.Length = 2
body24 = doc.addObject("PartDesign::Body", "Body023")
body24.AllowCompound = True

sketch18 = body24.newObject("Sketcher::SketchObject", "Sketch017")
sketch18.AttachmentSupport = (doc.getObject("XY_Plane023"), [""])
sketch18.MapMode = "FlatFace"
sketch18.addGeometry(Part.Circle(V(30, 7, 0), V(0, 0, 1), 6), False)
sketch18.addConstraint(Sketcher.Constraint("Diameter", 0, 11.9))
sketch18.addConstraint(Sketcher.Constraint("DistanceX", -1, 1, 0, 3, 29.55))
sketch18.addConstraint(Sketcher.Constraint("DistanceY", -1, 1, 0, 3, 7.35))
pad17 = body24.newObject("PartDesign::Pad", "Pad016")
pad17.Profile = sketch18
pad17.Length = 3.5
doc.recompute()

boolean20 = body24.newObject("PartDesign::Boolean", "Boolean019")
boolean20.Type = "Fuse"
boolean20.addObjects([body22])
doc.recompute()

boolean21 = body24.newObject("PartDesign::Boolean", "Boolean020")
boolean21.Type = "Fuse"
boolean21.addObjects([body23])
doc.recompute()

boolean22 = body24.newObject("PartDesign::Boolean", "Boolean021")
boolean22.Type = "Cut"
boolean22.addObjects([body21])
doc.recompute()

boolean23 = body24.newObject("PartDesign::Boolean", "Boolean022")
boolean23.Type = "Cut"
boolean23.addObjects([body2])

doc.recompute()
